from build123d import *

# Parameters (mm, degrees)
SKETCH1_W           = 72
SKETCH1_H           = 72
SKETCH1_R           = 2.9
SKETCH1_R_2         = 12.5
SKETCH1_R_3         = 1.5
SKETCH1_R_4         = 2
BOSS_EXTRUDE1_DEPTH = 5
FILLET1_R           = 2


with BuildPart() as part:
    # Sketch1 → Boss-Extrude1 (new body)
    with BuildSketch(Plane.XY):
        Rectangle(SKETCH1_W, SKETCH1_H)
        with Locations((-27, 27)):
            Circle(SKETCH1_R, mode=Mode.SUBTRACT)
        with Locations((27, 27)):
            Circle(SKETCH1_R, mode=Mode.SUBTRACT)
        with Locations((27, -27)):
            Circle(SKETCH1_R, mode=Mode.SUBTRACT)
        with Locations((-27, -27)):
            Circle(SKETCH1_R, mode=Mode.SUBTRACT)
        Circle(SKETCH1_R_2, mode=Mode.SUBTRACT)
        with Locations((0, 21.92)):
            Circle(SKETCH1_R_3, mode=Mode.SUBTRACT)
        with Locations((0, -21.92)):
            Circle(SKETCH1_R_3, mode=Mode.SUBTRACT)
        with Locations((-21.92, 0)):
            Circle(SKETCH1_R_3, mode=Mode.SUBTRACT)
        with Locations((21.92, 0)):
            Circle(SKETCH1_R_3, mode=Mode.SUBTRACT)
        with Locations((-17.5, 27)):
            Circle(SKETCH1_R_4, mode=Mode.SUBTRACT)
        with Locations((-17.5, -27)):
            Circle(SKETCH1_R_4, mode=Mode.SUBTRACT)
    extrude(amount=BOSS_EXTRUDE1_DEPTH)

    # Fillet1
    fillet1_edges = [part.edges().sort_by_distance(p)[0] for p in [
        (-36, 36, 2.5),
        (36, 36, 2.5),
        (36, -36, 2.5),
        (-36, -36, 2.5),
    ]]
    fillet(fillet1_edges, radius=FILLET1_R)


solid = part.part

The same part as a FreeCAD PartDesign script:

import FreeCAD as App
import Part
import Sketcher
Q = App.Units.Quantity


def edges_at(feature, points):
    """Names of the edges that pass closest to the given points."""
    edges = feature.Shape.Edges
    near = lambda p: min(range(len(edges)), key=lambda i: edges[i].distToShape(Part.Vertex(*p))[0])
    return sorted({f"Edge{near(p) + 1}" for p in points})

doc = App.newDocument("Part")
body = doc.addObject("PartDesign::Body", "Body")

sketch1 = body.newObject("Sketcher::SketchObject", "Sketch")
sketch1.AttachmentSupport = (doc.getObject("XY_Plane"), [""])
sketch1.MapMode = "FlatFace"
sketch1.addGeometry(Part.LineSegment(App.Vector(-36, 36, 0), App.Vector(-36, -36, 0)), False)
sketch1.addGeometry(Part.LineSegment(App.Vector(-36, -36, 0), App.Vector(36, -36, 0)), False)
sketch1.addGeometry(Part.LineSegment(App.Vector(36, -36, 0), App.Vector(36, 36, 0)), False)
sketch1.addGeometry(Part.LineSegment(App.Vector(36, 36, 0), App.Vector(-36, 36, 0)), False)
sketch1.addGeometry(Part.Circle(App.Vector(-27, -27, 0), App.Vector(0, 0, 1), 2.9), False)
sketch1.addGeometry(Part.Circle(App.Vector(-17.5, -27, 0), App.Vector(0, 0, 1), 2), False)
sketch1.addGeometry(Part.Circle(App.Vector(0, -21.9, 0), App.Vector(0, 0, 1), 1.5), False)
sketch1.addGeometry(Part.Circle(App.Vector(-21.9, 0, 0), App.Vector(0, 0, 1), 1.5), False)
sketch1.addGeometry(Part.Circle(App.Vector(0, 0, 0), App.Vector(0, 0, 1), 12.5), False)
sketch1.addGeometry(Part.Circle(App.Vector(27, -27, 0), App.Vector(0, 0, 1), 2.9), False)
sketch1.addGeometry(Part.Circle(App.Vector(21.9, 0, 0), App.Vector(0, 0, 1), 1.5), False)
sketch1.addGeometry(Part.Circle(App.Vector(-27, 27, 0), App.Vector(0, 0, 1), 2.9), False)
sketch1.addGeometry(Part.Circle(App.Vector(-17.5, 27, 0), App.Vector(0, 0, 1), 2), False)
sketch1.addGeometry(Part.Circle(App.Vector(0, 21.9, 0), App.Vector(0, 0, 1), 1.5), False)
sketch1.addGeometry(Part.Circle(App.Vector(27, 27, 0), App.Vector(0, 0, 1), 2.9), False)
sketch1.addConstraint(Sketcher.Constraint("Coincident", 0, 2, 1, 1))
sketch1.addConstraint(Sketcher.Constraint("Coincident", 1, 2, 2, 1))
sketch1.addConstraint(Sketcher.Constraint("Coincident", 2, 2, 3, 1))
sketch1.addConstraint(Sketcher.Constraint("Coincident", 3, 2, 0, 1))
sketch1.addConstraint(Sketcher.Constraint("Vertical", 0))
sketch1.addConstraint(Sketcher.Constraint("Horizontal", 1))
sketch1.addConstraint(Sketcher.Constraint("Vertical", 2))
sketch1.addConstraint(Sketcher.Constraint("Horizontal", 3))
sketch1.addConstraint(Sketcher.Constraint("Coincident", 8, 3, -1, 1))
sketch1.addConstraint(Sketcher.Constraint("Equal", 6, 7))
sketch1.addConstraint(Sketcher.Constraint("Equal", 4, 9))
sketch1.addConstraint(Sketcher.Constraint("Equal", 7, 10))
sketch1.addConstraint(Sketcher.Constraint("Equal", 9, 11))
sketch1.addConstraint(Sketcher.Constraint("Equal", 5, 12))
sketch1.addConstraint(Sketcher.Constraint("Equal", 10, 13))
sketch1.addConstraint(Sketcher.Constraint("Equal", 11, 14))
sketch1.addConstraint(Sketcher.Constraint("Symmetric", 7, 3, 10, 3, -1, 1))
sketch1.addConstraint(Sketcher.Constraint("Symmetric", 9, 3, 11, 3, -1, 1))
sketch1.addConstraint(Sketcher.Constraint("Symmetric", 6, 3, 13, 3, -1, 1))
sketch1.addConstraint(Sketcher.Constraint("Symmetric", 4, 3, 14, 3, -1, 1))
sketch1.addConstraint(Sketcher.Constraint("Symmetric", 0, 2, 2, 2, -1, 1))
sketch1.addConstraint(Sketcher.Constraint("Symmetric", 4, 3, 9, 3, -2))
sketch1.addConstraint(Sketcher.Constraint("Symmetric", 5, 3, 12, 3, -1))
sketch1.addConstraint(Sketcher.Constraint("PointOnObject", 6, 3, -2))
sketch1.addConstraint(Sketcher.Constraint("PointOnObject", 7, 3, -1))
sketch1.addConstraint(Sketcher.Constraint("Horizontal", 4, 3, 5, 3))
sketch1.addConstraint(Sketcher.Constraint("Equal", 3, 0))
sketch1.addConstraint(Sketcher.Constraint("Diameter", 5, Q("4 mm")))
sketch1.addConstraint(Sketcher.Constraint("Diameter", 6, Q("3 mm")))
sketch1.addConstraint(Sketcher.Constraint("Diameter", 8, Q("25 mm")))
sketch1.addConstraint(Sketcher.Constraint("Diameter", 4, Q("5.8 mm")))
sketch1.addConstraint(Sketcher.Constraint("DistanceX", 1, 1, 1, 2, Q("72 mm")))
sketch1.addConstraint(Sketcher.Constraint("DistanceX", 4, 3, -1, 1, Q("27 mm")))
sketch1.addConstraint(Sketcher.Constraint("DistanceY", 4, 3, -1, 1, Q("27 mm")))
sketch1.addConstraint(Sketcher.Constraint("DistanceX", 5, 3, -1, 1, Q("17.5 mm")))
sketch1.addConstraint(Sketcher.Constraint("DistanceY", 6, 3, -1, 1, Q("21.92 mm")))
sketch1.addConstraint(Sketcher.Constraint("DistanceX", 7, 3, -1, 1, Q("21.92 mm")))
pad1 = body.newObject("PartDesign::Pad", "Pad")
pad1.Profile = sketch1
pad1.Length = 5
doc.recompute()

fillet = body.newObject("PartDesign::Fillet", "Fillet")
fillet.Base = (pad1, edges_at(pad1, [
    (-36, 36, 2.5),
    (36, 36, 2.5),
    (36, -36, 2.5),
    (-36, -36, 2.5),
]))
fillet.Radius = 2

doc.recompute()
